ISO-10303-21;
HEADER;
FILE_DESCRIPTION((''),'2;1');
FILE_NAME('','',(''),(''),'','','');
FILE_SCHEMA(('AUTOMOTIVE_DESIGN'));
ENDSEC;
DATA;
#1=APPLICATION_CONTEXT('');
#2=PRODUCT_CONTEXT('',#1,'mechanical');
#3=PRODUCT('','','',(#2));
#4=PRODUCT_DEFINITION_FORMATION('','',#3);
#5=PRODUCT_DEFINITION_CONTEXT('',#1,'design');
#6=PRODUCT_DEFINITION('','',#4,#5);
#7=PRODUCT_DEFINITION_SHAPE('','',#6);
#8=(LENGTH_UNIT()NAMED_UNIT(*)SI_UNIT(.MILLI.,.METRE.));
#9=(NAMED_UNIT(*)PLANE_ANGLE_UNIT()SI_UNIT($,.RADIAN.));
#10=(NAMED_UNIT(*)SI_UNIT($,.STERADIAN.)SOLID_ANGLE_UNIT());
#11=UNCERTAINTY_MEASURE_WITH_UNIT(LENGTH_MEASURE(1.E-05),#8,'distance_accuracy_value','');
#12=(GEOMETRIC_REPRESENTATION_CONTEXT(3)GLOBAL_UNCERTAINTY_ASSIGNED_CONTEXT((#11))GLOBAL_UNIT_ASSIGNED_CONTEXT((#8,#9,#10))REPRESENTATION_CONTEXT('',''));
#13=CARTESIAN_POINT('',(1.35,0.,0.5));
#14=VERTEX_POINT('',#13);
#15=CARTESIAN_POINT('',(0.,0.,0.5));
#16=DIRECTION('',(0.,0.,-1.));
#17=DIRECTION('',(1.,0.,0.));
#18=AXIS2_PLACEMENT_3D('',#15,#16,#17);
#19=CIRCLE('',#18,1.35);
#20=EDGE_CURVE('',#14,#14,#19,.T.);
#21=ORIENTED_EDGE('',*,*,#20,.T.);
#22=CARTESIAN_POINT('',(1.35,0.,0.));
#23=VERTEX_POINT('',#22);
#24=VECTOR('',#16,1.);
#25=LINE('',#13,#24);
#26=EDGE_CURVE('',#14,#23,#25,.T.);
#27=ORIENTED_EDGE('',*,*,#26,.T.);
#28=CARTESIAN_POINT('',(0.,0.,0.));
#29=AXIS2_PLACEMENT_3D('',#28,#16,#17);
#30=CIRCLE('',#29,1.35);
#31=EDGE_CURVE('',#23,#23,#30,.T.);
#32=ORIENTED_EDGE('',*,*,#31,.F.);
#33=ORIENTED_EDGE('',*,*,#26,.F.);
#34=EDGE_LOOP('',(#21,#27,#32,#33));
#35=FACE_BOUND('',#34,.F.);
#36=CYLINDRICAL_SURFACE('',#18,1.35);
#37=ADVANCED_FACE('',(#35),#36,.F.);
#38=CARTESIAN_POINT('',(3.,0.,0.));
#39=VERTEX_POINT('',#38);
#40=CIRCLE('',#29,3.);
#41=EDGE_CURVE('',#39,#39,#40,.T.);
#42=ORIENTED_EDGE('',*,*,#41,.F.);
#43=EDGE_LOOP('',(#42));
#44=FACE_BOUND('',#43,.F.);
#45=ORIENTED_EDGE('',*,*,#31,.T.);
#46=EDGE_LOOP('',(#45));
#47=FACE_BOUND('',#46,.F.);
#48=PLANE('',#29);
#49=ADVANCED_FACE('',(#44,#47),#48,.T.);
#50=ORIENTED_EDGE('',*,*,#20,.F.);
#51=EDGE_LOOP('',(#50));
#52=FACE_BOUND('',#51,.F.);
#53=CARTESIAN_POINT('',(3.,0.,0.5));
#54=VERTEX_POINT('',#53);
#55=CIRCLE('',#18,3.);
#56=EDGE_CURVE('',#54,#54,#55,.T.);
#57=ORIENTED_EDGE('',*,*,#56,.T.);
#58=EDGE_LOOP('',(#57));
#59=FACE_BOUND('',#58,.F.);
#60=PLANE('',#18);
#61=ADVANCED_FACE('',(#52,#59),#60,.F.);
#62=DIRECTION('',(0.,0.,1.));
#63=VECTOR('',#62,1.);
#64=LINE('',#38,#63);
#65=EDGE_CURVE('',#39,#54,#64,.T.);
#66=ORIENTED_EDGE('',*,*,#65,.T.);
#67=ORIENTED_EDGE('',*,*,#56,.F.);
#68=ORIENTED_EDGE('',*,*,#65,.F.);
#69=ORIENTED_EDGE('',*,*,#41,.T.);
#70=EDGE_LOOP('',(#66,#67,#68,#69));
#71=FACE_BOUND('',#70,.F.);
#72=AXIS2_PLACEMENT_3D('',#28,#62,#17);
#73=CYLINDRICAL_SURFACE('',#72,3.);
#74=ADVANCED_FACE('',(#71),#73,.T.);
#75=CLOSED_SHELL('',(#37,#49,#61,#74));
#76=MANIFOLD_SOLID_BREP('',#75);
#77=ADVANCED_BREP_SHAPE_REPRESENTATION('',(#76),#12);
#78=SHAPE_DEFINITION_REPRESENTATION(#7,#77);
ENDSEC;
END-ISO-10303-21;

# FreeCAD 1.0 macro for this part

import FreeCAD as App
import Part
import Sketcher

doc = App.newDocument("Part")
body = doc.addObject("PartDesign::Body", "Body")

sketch1 = body.newObject("Sketcher::SketchObject", "Sketch")
sketch1.AttachmentSupport = (doc.getObject("XZ_Plane"), [""])
sketch1.MapMode = "FlatFace"
sketch1.addGeometry([
    Part.LineSegment(App.Vector(3, 0.5, 0), App.Vector(1.4, 0.5, 0)),
    Part.LineSegment(App.Vector(1.4, 0.5, 0), App.Vector(1.4, 0, 0)),
    Part.LineSegment(App.Vector(1.4, 0, 0), App.Vector(3, 0, 0)),
    Part.LineSegment(App.Vector(3, 0, 0), App.Vector(3, 0.5, 0)),
], False)
sketch1.addConstraint([
    Sketcher.Constraint("Coincident", 0, 2, 1, 1),
    Sketcher.Constraint("Coincident", 1, 2, 2, 1),
    Sketcher.Constraint("Coincident", 2, 2, 3, 1),
    Sketcher.Constraint("Coincident", 3, 2, 0, 1),
    Sketcher.Constraint("Horizontal", 0),
    Sketcher.Constraint("Vertical", 1),
    Sketcher.Constraint("Horizontal", 2),
    Sketcher.Constraint("Vertical", 3),
    Sketcher.Constraint("PointOnObject", 1, 2, -1),
    Sketcher.Constraint("DistanceX", -1, 1, 2, 2, 3.0),
    Sketcher.Constraint("DistanceY", 1, 2, 1, 1, 0.5),
    Sketcher.Constraint("DistanceX", 0, 2, 0, 1, 1.65),
])
revolution = body.newObject("PartDesign::Revolution", "Revolution")
revolution.Profile = sketch1
revolution.ReferenceAxis = (sketch1, ["V_Axis"])
revolution.Angle = 360

doc.recompute()
